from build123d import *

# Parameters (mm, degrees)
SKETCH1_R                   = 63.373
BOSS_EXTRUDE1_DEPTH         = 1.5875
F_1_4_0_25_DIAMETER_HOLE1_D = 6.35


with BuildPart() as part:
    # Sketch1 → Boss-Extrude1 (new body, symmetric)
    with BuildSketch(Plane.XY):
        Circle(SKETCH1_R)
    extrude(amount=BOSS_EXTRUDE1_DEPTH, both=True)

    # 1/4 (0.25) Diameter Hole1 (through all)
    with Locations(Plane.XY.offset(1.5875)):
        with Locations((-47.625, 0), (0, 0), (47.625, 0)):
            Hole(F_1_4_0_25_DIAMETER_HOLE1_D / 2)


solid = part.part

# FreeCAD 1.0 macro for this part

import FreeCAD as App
import Part
import Sketcher
Q = App.Units.Quantity

doc = App.newDocument("Part")
body = doc.addObject("PartDesign::Body", "Body")

# Sketch on XY plane
sketch1 = body.newObject("Sketcher::SketchObject", "Sketch")
sketch1.AttachmentSupport = (doc.getObject("XY_Plane"), [""])
sketch1.MapMode = "FlatFace"
sketch1.addGeometry(Part.Circle(App.Vector(0, 0, 0), App.Vector(0, 0, 1), 63), False)
sketch1.addConstraint([
    Sketcher.Constraint("Coincident", 0, 3, -1, 1),
    Sketcher.Constraint("Diameter", 0, Q("4.99 in")),
])
pad1 = body.newObject("PartDesign::Pad", "Pad")
pad1.Profile = sketch1
pad1.Length = Q("0.125 in")
pad1.Midplane = True

# Sketch on XY plane
sketch2 = body.newObject("Sketcher::SketchObject", "Sketch001")
sketch2.AttachmentSupport = (doc.getObject("XY_Plane"), [""])
sketch2.MapMode = "FlatFace"
sketch2.AttachmentOffset = App.Placement(App.Vector(0, 0, 0.0625 * 25.4), App.Rotation())
sketch2.addGeometry([
    Part.Circle(App.Vector(-47.6, 0, 0), App.Vector(0, 0, 1), 3.2),
    Part.Circle(App.Vector(0, 0, 0), App.Vector(0, 0, 1), 3.2),
    Part.Circle(App.Vector(47.6, 0, 0), App.Vector(0, 0, 1), 3.2),
], False)
sketch2.addConstraint([
    Sketcher.Constraint("Coincident", 1, 3, -1, 1),
    Sketcher.Constraint("Equal", 0, 1),
    Sketcher.Constraint("Equal", 1, 2),
    Sketcher.Constraint("Symmetric", 0, 3, 2, 3, -1, 1),
    Sketcher.Constraint("PointOnObject", 0, 3, -1),
    Sketcher.Constraint("Diameter", 0, Q("0.25 in")),
    Sketcher.Constraint("DistanceX", 0, 3, 2, 3, Q("3.75 in")),
])
doc.recompute()
hole = body.newObject("PartDesign::Hole", "Hole")
hole.Profile = sketch2
hole.ThreadType = "None"
hole.Diameter = Q("0.25 in")
hole.DepthType = "ThroughAll"

doc.recompute()
